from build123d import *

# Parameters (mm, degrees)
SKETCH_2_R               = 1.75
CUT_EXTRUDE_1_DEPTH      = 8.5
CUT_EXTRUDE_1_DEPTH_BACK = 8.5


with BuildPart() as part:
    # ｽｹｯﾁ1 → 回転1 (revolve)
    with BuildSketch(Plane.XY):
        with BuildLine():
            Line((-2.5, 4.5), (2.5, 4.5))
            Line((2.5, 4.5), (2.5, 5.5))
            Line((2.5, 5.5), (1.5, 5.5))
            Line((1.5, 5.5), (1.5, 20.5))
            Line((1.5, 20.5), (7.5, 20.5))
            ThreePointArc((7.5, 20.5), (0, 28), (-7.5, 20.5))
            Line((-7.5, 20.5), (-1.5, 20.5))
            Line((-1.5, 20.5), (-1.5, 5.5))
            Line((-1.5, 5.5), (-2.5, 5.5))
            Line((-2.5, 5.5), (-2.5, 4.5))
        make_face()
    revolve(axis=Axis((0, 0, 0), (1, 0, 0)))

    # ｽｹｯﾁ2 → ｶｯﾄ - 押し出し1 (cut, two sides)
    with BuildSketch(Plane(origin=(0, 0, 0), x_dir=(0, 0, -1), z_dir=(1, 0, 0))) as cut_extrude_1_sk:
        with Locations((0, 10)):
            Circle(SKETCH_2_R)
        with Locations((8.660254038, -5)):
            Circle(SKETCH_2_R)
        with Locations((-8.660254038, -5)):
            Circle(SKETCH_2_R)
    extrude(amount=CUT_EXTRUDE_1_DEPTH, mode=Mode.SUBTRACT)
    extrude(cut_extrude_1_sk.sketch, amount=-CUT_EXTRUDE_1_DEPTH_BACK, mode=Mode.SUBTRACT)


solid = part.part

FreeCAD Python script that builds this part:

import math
import FreeCAD as App
import Part
import Sketcher

doc = App.newDocument("Part")
body = doc.addObject("PartDesign::Body", "Body")

sketch1 = body.newObject("Sketcher::SketchObject", "Sketch")
sketch1.AttachmentSupport = (doc.getObject("XY_Plane"), [""])
sketch1.MapMode = "FlatFace"
sketch1.addGeometry(Part.LineSegment(App.Vector(-2.5, 4.5, 0), App.Vector(2.5, 4.5, 0)), False)
sketch1.addGeometry(Part.LineSegment(App.Vector(2.5, 4.5, 0), App.Vector(2.5, 5.5, 0)), False)
sketch1.addGeometry(Part.LineSegment(App.Vector(2.5, 5.5, 0), App.Vector(1.5, 5.5, 0)), False)
sketch1.addGeometry(Part.LineSegment(App.Vector(1.5, 5.5, 0), App.Vector(1.5, 20.5, 0)), False)
sketch1.addGeometry(Part.LineSegment(App.Vector(1.5, 20.5, 0), App.Vector(7.5, 20.5, 0)), False)
sketch1.addGeometry(Part.ArcOfCircle(Part.Circle(App.Vector(0, 20.5, 0), App.Vector(0, 0, 1), 7.5), math.radians(0), math.radians(180)), False)
sketch1.addGeometry(Part.LineSegment(App.Vector(-7.5, 20.5, 0), App.Vector(-1.5, 20.5, 0)), False)
sketch1.addGeometry(Part.LineSegment(App.Vector(-1.5, 20.5, 0), App.Vector(-1.5, 5.5, 0)), False)
sketch1.addGeometry(Part.LineSegment(App.Vector(-1.5, 5.5, 0), App.Vector(-2.5, 5.5, 0)), False)
sketch1.addGeometry(Part.LineSegment(App.Vector(-2.5, 5.5, 0), App.Vector(-2.5, 4.5, 0)), False)
sketch1.addConstraint(Sketcher.Constraint("Coincident", 0, 2, 1, 1))
sketch1.addConstraint(Sketcher.Constraint("Coincident", 1, 2, 2, 1))
sketch1.addConstraint(Sketcher.Constraint("Coincident", 2, 2, 3, 1))
sketch1.addConstraint(Sketcher.Constraint("Coincident", 3, 2, 4, 1))
sketch1.addConstraint(Sketcher.Constraint("Coincident", 4, 2, 5, 1))
sketch1.addConstraint(Sketcher.Constraint("Coincident", 5, 2, 6, 1))
sketch1.addConstraint(Sketcher.Constraint("Coincident", 6, 2, 7, 1))
sketch1.addConstraint(Sketcher.Constraint("Coincident", 7, 2, 8, 1))
sketch1.addConstraint(Sketcher.Constraint("Coincident", 8, 2, 9, 1))
sketch1.addConstraint(Sketcher.Constraint("Coincident", 9, 2, 0, 1))
sketch1.addConstraint(Sketcher.Constraint("Horizontal", 0))
sketch1.addConstraint(Sketcher.Constraint("Vertical", 1))
sketch1.addConstraint(Sketcher.Constraint("Horizontal", 2))
sketch1.addConstraint(Sketcher.Constraint("Vertical", 3))
sketch1.addConstraint(Sketcher.Constraint("Horizontal", 4))
sketch1.addConstraint(Sketcher.Constraint("Horizontal", 6))
sketch1.addConstraint(Sketcher.Constraint("Vertical", 7))
sketch1.addConstraint(Sketcher.Constraint("Horizontal", 8))
sketch1.addConstraint(Sketcher.Constraint("Vertical", 9))
sketch1.addConstraint(Sketcher.Constraint("Symmetric", 4, 2, 5, 2, -2))
sketch1.addConstraint(Sketcher.Constraint("Symmetric", 2, 2, 7, 2, -2))
sketch1.addConstraint(Sketcher.Constraint("Horizontal", 5, 3, 3, 2))
sketch1.addConstraint(Sketcher.Constraint("Equal", 2, 8))
sketch1.addConstraint(Sketcher.Constraint("Equal", 8, 1))
sketch1.addConstraint(Sketcher.Constraint("Radius", 5, 7.5))
sketch1.addConstraint(Sketcher.Constraint("DistanceX", 0, 1, 0, 2, 5.0))
sketch1.addConstraint(Sketcher.Constraint("DistanceX", 2, 2, 2, 1, 1.0))
sketch1.addConstraint(Sketcher.Constraint("DistanceY", 3, 1, 3, 2, 15.0))
sketch1.addConstraint(Sketcher.Constraint("DistanceY", -1, 1, 5, 3, 20.5))
revolution = body.newObject("PartDesign::Revolution", "Revolution")
revolution.Profile = sketch1
revolution.ReferenceAxis = (sketch1, ["H_Axis"])
revolution.Angle = 360

sketch2 = body.newObject("Sketcher::SketchObject", "Sketch001")
sketch2.AttachmentSupport = (doc.getObject("YZ_Plane"), [""])
sketch2.MapMode = "FlatFace"
sketch2.addGeometry(Part.Circle(App.Vector(10, 0, 0), App.Vector(0, 0, 1), 1.8), False)
sketch2.addGeometry(Part.Circle(App.Vector(-5, -8.7, 0), App.Vector(0, 0, 1), 1.8), False)
sketch2.addGeometry(Part.Circle(App.Vector(-5, 8.7, 0), App.Vector(0, 0, 1), 1.8), False)
sketch2.addConstraint(Sketcher.Constraint("Equal", 0, 1))
sketch2.addConstraint(Sketcher.Constraint("Equal", 1, 2))
sketch2.addConstraint(Sketcher.Constraint("Symmetric", 1, 3, 2, 3, -1))
sketch2.addConstraint(Sketcher.Constraint("PointOnObject", 0, 3, -1))
sketch2.addConstraint(Sketcher.Constraint("Diameter", 0, 3.5))
sketch2.addConstraint(Sketcher.Constraint("DistanceX", -1, 1, 0, 3, 10.0))
sketch2.addConstraint(Sketcher.Constraint("DistanceX", 1, 3, -1, 1, 5.0))
sketch2.addConstraint(Sketcher.Constraint("DistanceY", 1, 3, 2, 3, 17.320508))
pocket1 = body.newObject("PartDesign::Pocket", "Pocket")
pocket1.Profile = sketch2
pocket1.Type = "ThroughAll"
pocket1.Midplane = True

doc.recompute()
